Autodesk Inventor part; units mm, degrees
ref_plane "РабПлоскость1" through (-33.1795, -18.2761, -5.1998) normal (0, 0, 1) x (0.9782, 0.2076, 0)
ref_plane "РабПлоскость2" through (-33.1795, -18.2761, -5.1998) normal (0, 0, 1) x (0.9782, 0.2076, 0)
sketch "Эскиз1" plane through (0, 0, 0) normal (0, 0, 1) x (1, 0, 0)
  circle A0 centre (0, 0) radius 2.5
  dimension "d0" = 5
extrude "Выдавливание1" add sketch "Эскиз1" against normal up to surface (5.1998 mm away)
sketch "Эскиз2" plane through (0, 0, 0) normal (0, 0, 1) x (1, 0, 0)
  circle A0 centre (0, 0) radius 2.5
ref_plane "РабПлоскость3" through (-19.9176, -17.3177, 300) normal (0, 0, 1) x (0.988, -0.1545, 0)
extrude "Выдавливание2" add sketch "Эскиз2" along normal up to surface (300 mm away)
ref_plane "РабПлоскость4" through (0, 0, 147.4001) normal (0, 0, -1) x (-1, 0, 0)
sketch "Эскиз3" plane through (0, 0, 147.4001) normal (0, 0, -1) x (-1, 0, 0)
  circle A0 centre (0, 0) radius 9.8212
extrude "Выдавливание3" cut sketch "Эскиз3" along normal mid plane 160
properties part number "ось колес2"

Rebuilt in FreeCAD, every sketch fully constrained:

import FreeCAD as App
import Part
import Sketcher
from FreeCAD import Vector

doc = App.newDocument("Part")
params = doc.addObject("Spreadsheet::Sheet", "Params")
for row, (alias, value) in enumerate([
    ("sketch1_diameter", "5 mm"),
    ("pad1_length", "5.1998 mm"),
    ("sketch2_diameter", "5 mm"),
    ("pad2_length", "300 mm"),
    ("pocket1_length", "160 mm"),
], start=1):
    params.set(f"A{row}", alias)
    params.set(f"B{row}", "=" + value)
    params.setAlias(f"B{row}", alias)

body = doc.addObject("PartDesign::Body", "Body")
body.AllowCompound = True

# Sketch on XY plane
sketch1 = body.newObject("Sketcher::SketchObject", "Sketch")
sketch1.AttachmentSupport = (doc.getObject("XY_Plane"), [""])
sketch1.MapMode = "FlatFace"
sketch1.addGeometry(Part.Circle(Vector(0, 0, 0), Vector(0, 0, 1), 2.5), False)
sketch1.addConstraint([
    Sketcher.Constraint("Coincident", 0, 3, -1, 1),
    Sketcher.Constraint("Diameter", 0, 5.0),
])
sketch1.setExpression("Constraints[1]", "Params.sketch1_diameter")
pad1 = body.newObject("PartDesign::Pad", "Pad")
pad1.Profile = sketch1
pad1.setExpression("Length", "Params.pad1_length")
pad1.Reversed = True

# Sketch on XY plane
sketch2 = body.newObject("Sketcher::SketchObject", "Sketch001")
sketch2.AttachmentSupport = (doc.getObject("XY_Plane"), [""])
sketch2.MapMode = "FlatFace"
sketch2.addGeometry(Part.Circle(Vector(0, 0, 0), Vector(0, 0, 1), 2.5), False)
sketch2.addConstraint([
    Sketcher.Constraint("Coincident", 0, 3, -1, 1),
    Sketcher.Constraint("Diameter", 0, 5.0),
])
sketch2.setExpression("Constraints[1]", "Params.sketch2_diameter")
pad2 = body.newObject("PartDesign::Pad", "Pad001")
pad2.Profile = sketch2
pad2.setExpression("Length", "Params.pad2_length")

# Sketch on XY plane
sketch3 = body.newObject("Sketcher::SketchObject", "Sketch002")
sketch3.AttachmentSupport = (doc.getObject("XY_Plane"), [""])
sketch3.MapMode = "FlatFace"
sketch3.AttachmentOffset = App.Placement(Vector(0, 0, 147.4001), App.Rotation())
sketch3.addGeometry(Part.Circle(Vector(0, 0, 0), Vector(0, 0, 1), 10), False)
sketch3.addConstraint([
    Sketcher.Constraint("Coincident", 0, 3, -1, 1),
    Sketcher.Constraint("Diameter", 0, 19.6424),
])
pocket1 = body.newObject("PartDesign::Pocket", "Pocket")
pocket1.Profile = sketch3
pocket1.setExpression("Length", "Params.pocket1_length")
pocket1.Midplane = True

doc.recompute()
